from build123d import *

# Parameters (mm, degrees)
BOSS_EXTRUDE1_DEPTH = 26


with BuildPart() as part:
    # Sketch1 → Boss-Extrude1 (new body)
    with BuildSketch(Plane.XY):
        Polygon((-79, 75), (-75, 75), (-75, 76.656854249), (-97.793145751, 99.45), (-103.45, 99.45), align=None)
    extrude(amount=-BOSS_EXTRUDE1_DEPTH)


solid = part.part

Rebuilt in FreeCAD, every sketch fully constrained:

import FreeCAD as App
import Part
import Sketcher
from FreeCAD import Vector
Q = App.Units.Quantity

doc = App.newDocument("Part")
params = doc.addObject("Spreadsheet::Sheet", "Params")
for row, (alias, value) in enumerate([
    ("sketch1_width", "4 mm"),
    ("pad1_length", "26 mm"),
], start=1):
    params.set(f"A{row}", alias)
    params.set(f"B{row}", "=" + value)
    params.setAlias(f"B{row}", alias)

body = doc.addObject("PartDesign::Body", "Body")

# Sketch on XY plane
sketch1 = body.newObject("Sketcher::SketchObject", "Sketch")
sketch1.AttachmentSupport = (doc.getObject("XY_Plane"), [""])
sketch1.MapMode = "FlatFace"
sketch1.addGeometry(Part.LineSegment(Vector(-79, 75, 0), Vector(-75, 75, 0)), False)
sketch1.addGeometry(Part.LineSegment(Vector(-75, 75, 0), Vector(-75, 76.7, 0)), False)
sketch1.addGeometry(Part.LineSegment(Vector(-75, 76.7, 0), Vector(-97.8, 99.5, 0)), False)
sketch1.addGeometry(Part.LineSegment(Vector(-97.8, 99.5, 0), Vector(-103.5, 99.5, 0)), False)
sketch1.addGeometry(Part.LineSegment(Vector(-103.5, 99.5, 0), Vector(-79, 75, 0)), False)
sketch1.addConstraint(Sketcher.Constraint("Coincident", 0, 2, 1, 1))
sketch1.addConstraint(Sketcher.Constraint("Coincident", 1, 2, 2, 1))
sketch1.addConstraint(Sketcher.Constraint("Coincident", 2, 2, 3, 1))
sketch1.addConstraint(Sketcher.Constraint("Coincident", 3, 2, 4, 1))
sketch1.addConstraint(Sketcher.Constraint("Coincident", 4, 2, 0, 1))
sketch1.addConstraint(Sketcher.Constraint("Horizontal", 0))
sketch1.addConstraint(Sketcher.Constraint("Vertical", 1))
sketch1.addConstraint(Sketcher.Constraint("Horizontal", 3))
sketch1.addConstraint(Sketcher.Constraint("Parallel", 2, 4))
sketch1.addConstraint(Sketcher.Constraint("DistanceX", 0, 1, 0, 2, 4.0))
sketch1.addConstraint(Sketcher.Constraint("Angle", 2, Q("135 deg")))
sketch1.addConstraint(Sketcher.Constraint("DistanceX", 0, 2, -1, 1, 75.0))
sketch1.addConstraint(Sketcher.Constraint("DistanceY", -1, 1, 0, 2, 75.0))
sketch1.addConstraint(Sketcher.Constraint("DistanceY", -1, 1, 2, 2, 99.45))
sketch1.addConstraint(Sketcher.Constraint("DistanceX", 3, 2, 3, 1, 5.656854))
sketch1.setExpression("Constraints[9]", "Params.sketch1_width")
pad1 = body.newObject("PartDesign::Pad", "Pad")
pad1.Profile = sketch1
pad1.setExpression("Length", "Params.pad1_length")
pad1.Reversed = True

doc.recompute()
